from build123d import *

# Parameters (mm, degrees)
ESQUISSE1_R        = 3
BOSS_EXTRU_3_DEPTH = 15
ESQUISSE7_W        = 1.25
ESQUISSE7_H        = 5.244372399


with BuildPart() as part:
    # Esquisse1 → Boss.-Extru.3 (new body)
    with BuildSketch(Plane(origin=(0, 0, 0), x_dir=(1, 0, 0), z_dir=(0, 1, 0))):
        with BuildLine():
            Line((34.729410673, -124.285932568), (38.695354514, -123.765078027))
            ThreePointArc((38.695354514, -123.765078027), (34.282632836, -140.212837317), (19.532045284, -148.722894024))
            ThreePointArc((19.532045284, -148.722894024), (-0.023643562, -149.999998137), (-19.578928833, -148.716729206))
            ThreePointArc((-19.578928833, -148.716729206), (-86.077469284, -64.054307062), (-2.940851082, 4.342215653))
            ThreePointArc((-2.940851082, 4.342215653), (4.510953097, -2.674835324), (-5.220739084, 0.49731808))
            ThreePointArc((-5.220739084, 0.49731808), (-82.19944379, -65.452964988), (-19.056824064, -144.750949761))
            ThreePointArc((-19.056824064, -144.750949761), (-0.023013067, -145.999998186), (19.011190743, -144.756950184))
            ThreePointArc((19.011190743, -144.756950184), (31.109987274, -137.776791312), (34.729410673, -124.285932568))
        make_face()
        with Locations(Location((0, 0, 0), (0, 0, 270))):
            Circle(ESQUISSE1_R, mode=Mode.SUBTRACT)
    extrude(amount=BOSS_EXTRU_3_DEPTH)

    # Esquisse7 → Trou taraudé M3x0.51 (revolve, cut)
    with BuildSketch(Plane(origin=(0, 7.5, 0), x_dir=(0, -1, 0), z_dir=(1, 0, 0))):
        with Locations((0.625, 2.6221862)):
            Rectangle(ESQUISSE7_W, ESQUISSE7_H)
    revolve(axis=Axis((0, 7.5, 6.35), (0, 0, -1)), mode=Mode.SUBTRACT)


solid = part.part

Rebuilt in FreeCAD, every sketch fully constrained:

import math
import FreeCAD as App
import Part
import Sketcher
Q = App.Units.Quantity

doc = App.newDocument("Part")
params = doc.addObject("Spreadsheet::Sheet", "Params")
for row, (alias, value) in enumerate([
    ("sketch1_diameter", "6 mm"),
    ("sketch1_radius", "146 mm"),
    ("sketch1_radius2", "73 mm"),
    ("sketch1_radius3", "77 mm"),
    ("sketch1_radius4", "18.25 mm"),
    ("pad1_length", "15 mm"),
    ("sketch2_width", "1.25 mm"),
    ("groove_angle", "360 deg"),
], start=1):
    params.set(f"A{row}", alias)
    params.set(f"B{row}", "=" + value)
    params.setAlias(f"B{row}", alias)

body = doc.addObject("PartDesign::Body", "Body")

# Sketch on XZ plane
sketch1 = doc.addObject("Sketcher::SketchObject", "Sketch")
body.addObject(sketch1)
sketch1.AttachmentSupport = (doc.XZ_Plane, [""])
sketch1.MapMode = "FlatFace"
sketch1.addGeometry([
    Part.LineSegment(App.Vector(38.7, 123.8, 0), App.Vector(34.7, 124.3, 0)),  # 0
    Part.ArcOfCircle(Part.Circle(App.Vector(16.6, 126.7, 0), App.Vector(0, 0, 1), 18.2), math.radians(-7), math.radians(83)),  # 1
    Part.ArcOfCircle(Part.Circle(App.Vector(0, 0, 0), App.Vector(0, 0, 1), 146), math.radians(82.52), math.radians(97.5)),  # 2
    Part.ArcOfCircle(Part.Circle(App.Vector(-9.5, 72.4, 0), App.Vector(0, 0, 1), 73), math.radians(98), math.radians(273)),  # 3
    Part.ArcOfCircle(Part.Circle(App.Vector(0, 0, 0), App.Vector(0, 0, 1), 5.2), math.radians(-124), math.radians(185)),  # 4
    Part.ArcOfCircle(Part.Circle(App.Vector(-9.5, 72.4, 0), App.Vector(0, 0, 1), 77), math.radians(98), math.radians(275)),  # 5
    Part.ArcOfCircle(Part.Circle(App.Vector(0, 0, 0), App.Vector(0, 0, 1), 150), math.radians(82.52), math.radians(97.5)),  # 6
    Part.ArcOfCircle(Part.Circle(App.Vector(16.6, 126.7, 0), App.Vector(0, 0, 1), 22.2), math.radians(-7), math.radians(83)),  # 7
    Part.Circle(App.Vector(0, 0, 0), App.Vector(0, 0, 1), 3),  # 8
], False)
sketch1.addConstraint([
    Sketcher.Constraint("Coincident", 0, 2, 1, 1),
    Sketcher.Constraint("Tangent", 1, 2, 2, 1),
    Sketcher.Constraint("Tangent", 2, 2, 3, 1),
    Sketcher.Constraint("Coincident", 3, 2, 4, 2),
    Sketcher.Constraint("Coincident", 4, 1, 5, 2),
    Sketcher.Constraint("Tangent", 5, 1, 6, 2),
    Sketcher.Constraint("Tangent", 6, 1, 7, 2),
    Sketcher.Constraint("Coincident", 7, 1, 0, 1),
    Sketcher.Constraint("Coincident", 2, 3, -1, 1),
    Sketcher.Constraint("Coincident", 4, 3, -1, 1),
    Sketcher.Constraint("Coincident", 6, 3, -1, 1),
    Sketcher.Constraint("Coincident", 8, 3, -1, 1),
    Sketcher.Constraint("Coincident", 5, 3, 3, 3),
    Sketcher.Constraint("Coincident", 7, 3, 1, 3),
    Sketcher.Constraint("Diameter", 8, Q("6 mm")),
    Sketcher.Constraint("Radius", 2, Q("146 mm")),
    Sketcher.Constraint("Radius", 3, Q("73 mm")),
    Sketcher.Constraint("Radius", 5, Q("77 mm")),
    Sketcher.Constraint("Radius", 1, Q("18.25 mm")),
    Sketcher.Constraint("Radius", 4, Q("5.244372 mm")),
    Sketcher.Constraint("DistanceY", 2, 2, 1, 2, Q("0.006 mm")),
    Sketcher.Constraint("DistanceY", 0, 2, 7, 3, Q("2.376399 mm")),
    Sketcher.Constraint("DistanceX", 7, 3, 1, 2, Q("2.376399 mm")),
    Sketcher.Constraint("DistanceY", -1, 1, 7, 1, Q("123.765078 mm")),
])
sketch1.setExpression("Constraints[14]", "Params.sketch1_diameter")
sketch1.setExpression("Constraints[15]", "Params.sketch1_radius")
sketch1.setExpression("Constraints[16]", "Params.sketch1_radius2")
sketch1.setExpression("Constraints[17]", "Params.sketch1_radius3")
sketch1.setExpression("Constraints[18]", "Params.sketch1_radius4")
pad1 = doc.addObject("PartDesign::Pad", "Pad")
body.addObject(pad1)
pad1.Profile = sketch1
pad1.setExpression("Length", "Params.pad1_length")
pad1.Reversed = True

# Sketch on YZ plane
sketch2 = doc.addObject("Sketcher::SketchObject", "Sketch001")
body.addObject(sketch2)
sketch2.AttachmentSupport = (doc.YZ_Plane, [""])
sketch2.MapMode = "FlatFace"
sketch2.addGeometry([
    Part.LineSegment(App.Vector(7.5, -5.2, 0), App.Vector(7.5, 0, 0)),
    Part.LineSegment(App.Vector(7.5, 0, 0), App.Vector(6.2, 0, 0)),
    Part.LineSegment(App.Vector(6.2, 0, 0), App.Vector(6.2, -5.2, 0)),
    Part.LineSegment(App.Vector(6.2, -5.2, 0), App.Vector(7.5, -5.2, 0)),
], False)
sketch2.addGeometry(Part.LineSegment(App.Vector(7.5, 0, 0), App.Vector(7.5, -5.2, 0)), True)  # axis
sketch2.addConstraint([
    Sketcher.Constraint("Coincident", 0, 2, 1, 1),
    Sketcher.Constraint("Coincident", 1, 2, 2, 1),
    Sketcher.Constraint("Coincident", 2, 2, 3, 1),
    Sketcher.Constraint("Coincident", 3, 2, 0, 1),
    Sketcher.Constraint("Vertical", 0),
    Sketcher.Constraint("Horizontal", 1),
    Sketcher.Constraint("Vertical", 2),
    Sketcher.Constraint("Horizontal", 3),
    Sketcher.Constraint("Vertical", 4),
    Sketcher.Constraint("Coincident", 4, 1, 0, 2),
    Sketcher.Constraint("PointOnObject", 0, 2, -1),
    Sketcher.Constraint("Horizontal", 2, 2, 4, 2),
    Sketcher.Constraint("DistanceX", 1, 2, 1, 1, Q("1.25 mm")),
    Sketcher.Constraint("DistanceX", -1, 1, 0, 2, Q("7.5 mm")),
    Sketcher.Constraint("DistanceY", 0, 1, 0, 2, Q("5.244372 mm")),
])
sketch2.setExpression("Constraints[12]", "Params.sketch2_width")
groove = doc.addObject("PartDesign::Groove", "Groove")
body.addObject(groove)
groove.Profile = sketch2
groove.ReferenceAxis = (sketch2, ["Axis0"])
groove.setExpression("Angle", "Params.groove_angle")

doc.recompute()
